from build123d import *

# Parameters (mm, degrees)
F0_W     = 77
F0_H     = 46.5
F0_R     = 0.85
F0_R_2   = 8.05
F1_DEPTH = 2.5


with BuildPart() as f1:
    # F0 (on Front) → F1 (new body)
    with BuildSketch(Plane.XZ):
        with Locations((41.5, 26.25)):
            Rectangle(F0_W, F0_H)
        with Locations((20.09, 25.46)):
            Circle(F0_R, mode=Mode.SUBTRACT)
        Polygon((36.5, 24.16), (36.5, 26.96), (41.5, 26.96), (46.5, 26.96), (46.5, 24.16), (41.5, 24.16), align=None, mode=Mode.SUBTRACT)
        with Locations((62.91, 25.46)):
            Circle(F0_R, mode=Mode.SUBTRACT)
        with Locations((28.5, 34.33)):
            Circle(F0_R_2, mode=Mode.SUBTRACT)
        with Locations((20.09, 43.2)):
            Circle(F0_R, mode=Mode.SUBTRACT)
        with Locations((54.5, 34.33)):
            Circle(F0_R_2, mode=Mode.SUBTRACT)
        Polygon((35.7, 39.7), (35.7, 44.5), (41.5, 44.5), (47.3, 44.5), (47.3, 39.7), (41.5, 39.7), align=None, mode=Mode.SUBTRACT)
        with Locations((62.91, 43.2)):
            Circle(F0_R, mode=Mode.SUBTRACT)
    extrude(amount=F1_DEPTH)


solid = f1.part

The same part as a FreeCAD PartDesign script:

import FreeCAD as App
import Part
import Sketcher
Q = App.Units.Quantity


def add_polygon(sketch, points):
    """Adds a closed chain of lines whose ends are joined by coincident constraints."""
    first, n = sketch.GeometryCount, len(points)
    for a, b in zip(points, points[1:] + points[:1]):
        sketch.addGeometry(Part.LineSegment(App.Vector(*a, 0), App.Vector(*b, 0)), False)
    for i in range(n):
        sketch.addConstraint(Sketcher.Constraint("Coincident", first + i, 2, first + (i + 1) % n, 1))

doc = App.newDocument("Part")
params = doc.addObject("Spreadsheet::Sheet", "Params")
for row, (alias, value) in enumerate([
    ("sketch1_diameter", "1.7 mm"),
    ("sketch1_diameter2", "16.1 mm"),
    ("sketch1_width", "77 mm"),
    ("sketch1_width2", "10 mm"),
    ("sketch1_width3", "11.6 mm"),
    ("pad1_length", "2.5 mm"),
], start=1):
    params.set(f"A{row}", alias)
    params.set(f"B{row}", "=" + value)
    params.setAlias(f"B{row}", alias)

body = doc.addObject("PartDesign::Body", "Body")

# Sketch on XZ plane
sketch1 = body.newObject("Sketcher::SketchObject", "Sketch")
sketch1.AttachmentSupport = (doc.getObject("XZ_Plane"), [""])
sketch1.MapMode = "FlatFace"
add_polygon(sketch1, [(3, 49.5), (3, 3), (80, 3), (80, 49.5)])  # lines 0-3
sketch1.addGeometry(Part.Circle(App.Vector(20.1, 25.5, 0), App.Vector(0, 0, 1), 0.8), False)  # 4
sketch1.addGeometry(Part.Circle(App.Vector(28.5, 34.3, 0), App.Vector(0, 0, 1), 8.1), False)  # 5
add_polygon(sketch1, [(46.5, 24.2), (36.5, 24.2), (36.5, 27), (46.5, 27)])  # lines 6-9
sketch1.addGeometry(Part.Circle(App.Vector(62.9, 25.5, 0), App.Vector(0, 0, 1), 0.8), False)  # 10
sketch1.addGeometry(Part.Circle(App.Vector(54.5, 34.3, 0), App.Vector(0, 0, 1), 8.1), False)  # 11
sketch1.addGeometry(Part.Circle(App.Vector(20.1, 43.2, 0), App.Vector(0, 0, 1), 0.8), False)  # 12
add_polygon(sketch1, [(47.3, 39.7), (35.7, 39.7), (35.7, 44.5), (47.3, 44.5)])  # lines 13-16
sketch1.addGeometry(Part.Circle(App.Vector(62.9, 43.2, 0), App.Vector(0, 0, 1), 0.8), False)  # 17
sketch1.addConstraint([
    Sketcher.Constraint("Vertical", 0),
    Sketcher.Constraint("Horizontal", 1),
    Sketcher.Constraint("Vertical", 2),
    Sketcher.Constraint("Horizontal", 3),
    Sketcher.Constraint("Horizontal", 6),
    Sketcher.Constraint("Vertical", 7),
    Sketcher.Constraint("Horizontal", 8),
    Sketcher.Constraint("Vertical", 9),
    Sketcher.Constraint("Horizontal", 13),
    Sketcher.Constraint("Vertical", 14),
    Sketcher.Constraint("Horizontal", 15),
    Sketcher.Constraint("Vertical", 16),
    Sketcher.Constraint("Equal", 4, 10),
    Sketcher.Constraint("Equal", 5, 11),
    Sketcher.Constraint("Equal", 10, 12),
    Sketcher.Constraint("Equal", 12, 17),
    Sketcher.Constraint("Horizontal", 4, 3, 10, 3),
    Sketcher.Constraint("Horizontal", 5, 3, 11, 3),
    Sketcher.Constraint("Horizontal", 12, 3, 17, 3),
    Sketcher.Constraint("Vertical", 4, 3, 12, 3),
    Sketcher.Constraint("Vertical", 10, 3, 17, 3),
    Sketcher.Constraint("Diameter", 4, Q("1.7 mm")),
    Sketcher.Constraint("Diameter", 5, Q("16.1 mm")),
    Sketcher.Constraint("DistanceX", 1, 1, 1, 2, Q("77 mm")),
    Sketcher.Constraint("DistanceX", 6, 2, 6, 1, Q("10 mm")),
    Sketcher.Constraint("DistanceX", 13, 2, 13, 1, Q("11.6 mm")),
    Sketcher.Constraint("DistanceY", 0, 2, 0, 1, Q("46.5 mm")),
    Sketcher.Constraint("DistanceY", 7, 1, 7, 2, Q("2.8 mm")),
    Sketcher.Constraint("DistanceY", 14, 1, 14, 2, Q("4.8 mm")),
    Sketcher.Constraint("DistanceX", -1, 1, 0, 2, Q("3 mm")),
    Sketcher.Constraint("DistanceY", -1, 1, 0, 2, Q("3 mm")),
    Sketcher.Constraint("DistanceX", 5, 3, 11, 3, Q("26 mm")),
    Sketcher.Constraint("DistanceX", 5, 3, 6, 2, Q("8 mm")),
    Sketcher.Constraint("DistanceX", -1, 1, 5, 3, Q("28.5 mm")),
    Sketcher.Constraint("DistanceY", -1, 1, 12, 3, Q("43.2 mm")),
    Sketcher.Constraint("DistanceX", -1, 1, 13, 2, Q("35.7 mm")),
    Sketcher.Constraint("DistanceY", -1, 1, 13, 2, Q("39.7 mm")),
    Sketcher.Constraint("DistanceY", 6, 2, 4, 3, Q("1.3 mm")),
    Sketcher.Constraint("DistanceX", -1, 1, 4, 3, Q("20.09 mm")),
    Sketcher.Constraint("DistanceY", -1, 1, 4, 3, Q("25.46 mm")),
    Sketcher.Constraint("DistanceY", -1, 1, 5, 3, Q("34.33 mm")),
    Sketcher.Constraint("DistanceX", -1, 1, 10, 3, Q("62.91 mm")),
])
sketch1.setExpression("Constraints[33]", "Params.sketch1_diameter")
sketch1.setExpression("Constraints[34]", "Params.sketch1_diameter2")
sketch1.setExpression("Constraints[35]", "Params.sketch1_width")
sketch1.setExpression("Constraints[36]", "Params.sketch1_width2")
sketch1.setExpression("Constraints[37]", "Params.sketch1_width3")
pad1 = body.newObject("PartDesign::Pad", "Pad")
pad1.Profile = sketch1
pad1.setExpression("Length", "Params.pad1_length")

doc.recompute()
